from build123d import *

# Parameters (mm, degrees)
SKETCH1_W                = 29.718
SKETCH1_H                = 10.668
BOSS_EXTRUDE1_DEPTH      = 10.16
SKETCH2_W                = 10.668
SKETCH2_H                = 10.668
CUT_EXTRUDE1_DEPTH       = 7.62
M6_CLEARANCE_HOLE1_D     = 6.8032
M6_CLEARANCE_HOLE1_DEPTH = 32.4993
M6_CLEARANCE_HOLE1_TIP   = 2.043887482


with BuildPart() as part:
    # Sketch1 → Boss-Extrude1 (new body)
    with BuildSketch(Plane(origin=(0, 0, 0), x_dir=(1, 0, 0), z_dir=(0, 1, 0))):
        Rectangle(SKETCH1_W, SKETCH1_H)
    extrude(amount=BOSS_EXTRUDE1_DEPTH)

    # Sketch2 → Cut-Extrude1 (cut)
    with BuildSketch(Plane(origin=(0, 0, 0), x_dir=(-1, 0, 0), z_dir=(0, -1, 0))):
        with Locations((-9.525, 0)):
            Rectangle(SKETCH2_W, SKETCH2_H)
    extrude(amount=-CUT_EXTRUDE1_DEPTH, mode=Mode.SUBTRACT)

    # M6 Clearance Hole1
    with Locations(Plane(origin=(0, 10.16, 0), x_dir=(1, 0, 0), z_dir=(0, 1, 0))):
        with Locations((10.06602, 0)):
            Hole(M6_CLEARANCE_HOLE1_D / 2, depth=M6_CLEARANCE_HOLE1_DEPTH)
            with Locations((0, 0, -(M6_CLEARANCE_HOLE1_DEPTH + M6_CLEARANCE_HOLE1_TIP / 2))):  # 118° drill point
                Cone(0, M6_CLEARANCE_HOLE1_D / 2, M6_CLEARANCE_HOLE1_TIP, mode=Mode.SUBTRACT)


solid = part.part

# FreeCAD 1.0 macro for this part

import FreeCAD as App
import Part
import Sketcher
Q = App.Units.Quantity

doc = App.newDocument("Part")
body = doc.addObject("PartDesign::Body", "Body")

# Sketch on XZ plane
sketch1 = body.newObject("Sketcher::SketchObject", "Sketch")
sketch1.AttachmentSupport = (doc.getObject("XZ_Plane"), [""])
sketch1.MapMode = "FlatFace"
sketch1.addGeometry([
    Part.LineSegment(App.Vector(-15, -5, 0), App.Vector(-15, 5, 0)),
    Part.LineSegment(App.Vector(-15, 5, 0), App.Vector(15, 5, 0)),
    Part.LineSegment(App.Vector(15, 5, 0), App.Vector(15, -5, 0)),
    Part.LineSegment(App.Vector(15, -5, 0), App.Vector(-15, -5, 0)),
], False)
sketch1.addConstraint([
    Sketcher.Constraint("Coincident", 0, 2, 1, 1),
    Sketcher.Constraint("Coincident", 1, 2, 2, 1),
    Sketcher.Constraint("Coincident", 2, 2, 3, 1),
    Sketcher.Constraint("Coincident", 3, 2, 0, 1),
    Sketcher.Constraint("Vertical", 0),
    Sketcher.Constraint("Horizontal", 1),
    Sketcher.Constraint("Vertical", 2),
    Sketcher.Constraint("Horizontal", 3),
    Sketcher.Constraint("Symmetric", 0, 2, 2, 2, -1, 1),
    Sketcher.Constraint("DistanceX", 1, 1, 1, 2, Q("1.17 in")),
    Sketcher.Constraint("DistanceY", 0, 1, 0, 2, Q("0.42 in")),
])
pad1 = body.newObject("PartDesign::Pad", "Pad")
pad1.Profile = sketch1
pad1.Length = Q("0.4 in")
pad1.Reversed = True

# Sketch on XZ plane
sketch2 = body.newObject("Sketcher::SketchObject", "Sketch001")
sketch2.AttachmentSupport = (doc.getObject("XZ_Plane"), [""])
sketch2.MapMode = "FlatFace"
sketch2.addGeometry([
    Part.LineSegment(App.Vector(15, -5, 0), App.Vector(15, 5, 0)),
    Part.LineSegment(App.Vector(15, 5, 0), App.Vector(4, 5, 0)),
    Part.LineSegment(App.Vector(4, 5, 0), App.Vector(4, -5, 0)),
    Part.LineSegment(App.Vector(4, -5, 0), App.Vector(15, -5, 0)),
], False)
sketch2.addConstraint([
    Sketcher.Constraint("Coincident", 0, 2, 1, 1),
    Sketcher.Constraint("Coincident", 1, 2, 2, 1),
    Sketcher.Constraint("Coincident", 2, 2, 3, 1),
    Sketcher.Constraint("Coincident", 3, 2, 0, 1),
    Sketcher.Constraint("Vertical", 0),
    Sketcher.Constraint("Horizontal", 1),
    Sketcher.Constraint("Vertical", 2),
    Sketcher.Constraint("Horizontal", 3),
    Sketcher.Constraint("Equal", 3, 0),
    Sketcher.Constraint("DistanceX", 1, 2, 1, 1, Q("0.42 in")),
    Sketcher.Constraint("DistanceY", -1, 1, 0, 2, Q("0.21 in")),
    Sketcher.Constraint("DistanceX", -1, 1, 0, 2, Q("0.585 in")),
])
pocket1 = body.newObject("PartDesign::Pocket", "Pocket")
pocket1.Profile = sketch2
pocket1.Length = Q("0.3 in")

# Sketch on XZ plane
sketch3 = body.newObject("Sketcher::SketchObject", "Sketch002")
sketch3.AttachmentSupport = (doc.getObject("XZ_Plane"), [""])
sketch3.MapMode = "FlatFace"
sketch3.AttachmentOffset = App.Placement(App.Vector(0, 0, -0.4 * 25.4), App.Rotation())
sketch3.addGeometry(Part.Circle(App.Vector(10.1, 0, 0), App.Vector(0, 0, 1), 3.4), False)
sketch3.addConstraint([
    Sketcher.Constraint("PointOnObject", 0, 3, -1),
    Sketcher.Constraint("Diameter", 0, 6.8032),
    Sketcher.Constraint("DistanceX", -1, 1, 0, 3, Q("0.3963 in")),
])
doc.recompute()
hole = body.newObject("PartDesign::Hole", "Hole")
hole.Profile = sketch3
hole.ThreadType = "None"
hole.Diameter = 6.8032
hole.DepthType = "Dimension"
hole.Depth = Q("1.2795 in")
hole.DrillPoint = "Angled"
hole.DrillPointAngle = 118
hole.Reversed = True

doc.recompute()
